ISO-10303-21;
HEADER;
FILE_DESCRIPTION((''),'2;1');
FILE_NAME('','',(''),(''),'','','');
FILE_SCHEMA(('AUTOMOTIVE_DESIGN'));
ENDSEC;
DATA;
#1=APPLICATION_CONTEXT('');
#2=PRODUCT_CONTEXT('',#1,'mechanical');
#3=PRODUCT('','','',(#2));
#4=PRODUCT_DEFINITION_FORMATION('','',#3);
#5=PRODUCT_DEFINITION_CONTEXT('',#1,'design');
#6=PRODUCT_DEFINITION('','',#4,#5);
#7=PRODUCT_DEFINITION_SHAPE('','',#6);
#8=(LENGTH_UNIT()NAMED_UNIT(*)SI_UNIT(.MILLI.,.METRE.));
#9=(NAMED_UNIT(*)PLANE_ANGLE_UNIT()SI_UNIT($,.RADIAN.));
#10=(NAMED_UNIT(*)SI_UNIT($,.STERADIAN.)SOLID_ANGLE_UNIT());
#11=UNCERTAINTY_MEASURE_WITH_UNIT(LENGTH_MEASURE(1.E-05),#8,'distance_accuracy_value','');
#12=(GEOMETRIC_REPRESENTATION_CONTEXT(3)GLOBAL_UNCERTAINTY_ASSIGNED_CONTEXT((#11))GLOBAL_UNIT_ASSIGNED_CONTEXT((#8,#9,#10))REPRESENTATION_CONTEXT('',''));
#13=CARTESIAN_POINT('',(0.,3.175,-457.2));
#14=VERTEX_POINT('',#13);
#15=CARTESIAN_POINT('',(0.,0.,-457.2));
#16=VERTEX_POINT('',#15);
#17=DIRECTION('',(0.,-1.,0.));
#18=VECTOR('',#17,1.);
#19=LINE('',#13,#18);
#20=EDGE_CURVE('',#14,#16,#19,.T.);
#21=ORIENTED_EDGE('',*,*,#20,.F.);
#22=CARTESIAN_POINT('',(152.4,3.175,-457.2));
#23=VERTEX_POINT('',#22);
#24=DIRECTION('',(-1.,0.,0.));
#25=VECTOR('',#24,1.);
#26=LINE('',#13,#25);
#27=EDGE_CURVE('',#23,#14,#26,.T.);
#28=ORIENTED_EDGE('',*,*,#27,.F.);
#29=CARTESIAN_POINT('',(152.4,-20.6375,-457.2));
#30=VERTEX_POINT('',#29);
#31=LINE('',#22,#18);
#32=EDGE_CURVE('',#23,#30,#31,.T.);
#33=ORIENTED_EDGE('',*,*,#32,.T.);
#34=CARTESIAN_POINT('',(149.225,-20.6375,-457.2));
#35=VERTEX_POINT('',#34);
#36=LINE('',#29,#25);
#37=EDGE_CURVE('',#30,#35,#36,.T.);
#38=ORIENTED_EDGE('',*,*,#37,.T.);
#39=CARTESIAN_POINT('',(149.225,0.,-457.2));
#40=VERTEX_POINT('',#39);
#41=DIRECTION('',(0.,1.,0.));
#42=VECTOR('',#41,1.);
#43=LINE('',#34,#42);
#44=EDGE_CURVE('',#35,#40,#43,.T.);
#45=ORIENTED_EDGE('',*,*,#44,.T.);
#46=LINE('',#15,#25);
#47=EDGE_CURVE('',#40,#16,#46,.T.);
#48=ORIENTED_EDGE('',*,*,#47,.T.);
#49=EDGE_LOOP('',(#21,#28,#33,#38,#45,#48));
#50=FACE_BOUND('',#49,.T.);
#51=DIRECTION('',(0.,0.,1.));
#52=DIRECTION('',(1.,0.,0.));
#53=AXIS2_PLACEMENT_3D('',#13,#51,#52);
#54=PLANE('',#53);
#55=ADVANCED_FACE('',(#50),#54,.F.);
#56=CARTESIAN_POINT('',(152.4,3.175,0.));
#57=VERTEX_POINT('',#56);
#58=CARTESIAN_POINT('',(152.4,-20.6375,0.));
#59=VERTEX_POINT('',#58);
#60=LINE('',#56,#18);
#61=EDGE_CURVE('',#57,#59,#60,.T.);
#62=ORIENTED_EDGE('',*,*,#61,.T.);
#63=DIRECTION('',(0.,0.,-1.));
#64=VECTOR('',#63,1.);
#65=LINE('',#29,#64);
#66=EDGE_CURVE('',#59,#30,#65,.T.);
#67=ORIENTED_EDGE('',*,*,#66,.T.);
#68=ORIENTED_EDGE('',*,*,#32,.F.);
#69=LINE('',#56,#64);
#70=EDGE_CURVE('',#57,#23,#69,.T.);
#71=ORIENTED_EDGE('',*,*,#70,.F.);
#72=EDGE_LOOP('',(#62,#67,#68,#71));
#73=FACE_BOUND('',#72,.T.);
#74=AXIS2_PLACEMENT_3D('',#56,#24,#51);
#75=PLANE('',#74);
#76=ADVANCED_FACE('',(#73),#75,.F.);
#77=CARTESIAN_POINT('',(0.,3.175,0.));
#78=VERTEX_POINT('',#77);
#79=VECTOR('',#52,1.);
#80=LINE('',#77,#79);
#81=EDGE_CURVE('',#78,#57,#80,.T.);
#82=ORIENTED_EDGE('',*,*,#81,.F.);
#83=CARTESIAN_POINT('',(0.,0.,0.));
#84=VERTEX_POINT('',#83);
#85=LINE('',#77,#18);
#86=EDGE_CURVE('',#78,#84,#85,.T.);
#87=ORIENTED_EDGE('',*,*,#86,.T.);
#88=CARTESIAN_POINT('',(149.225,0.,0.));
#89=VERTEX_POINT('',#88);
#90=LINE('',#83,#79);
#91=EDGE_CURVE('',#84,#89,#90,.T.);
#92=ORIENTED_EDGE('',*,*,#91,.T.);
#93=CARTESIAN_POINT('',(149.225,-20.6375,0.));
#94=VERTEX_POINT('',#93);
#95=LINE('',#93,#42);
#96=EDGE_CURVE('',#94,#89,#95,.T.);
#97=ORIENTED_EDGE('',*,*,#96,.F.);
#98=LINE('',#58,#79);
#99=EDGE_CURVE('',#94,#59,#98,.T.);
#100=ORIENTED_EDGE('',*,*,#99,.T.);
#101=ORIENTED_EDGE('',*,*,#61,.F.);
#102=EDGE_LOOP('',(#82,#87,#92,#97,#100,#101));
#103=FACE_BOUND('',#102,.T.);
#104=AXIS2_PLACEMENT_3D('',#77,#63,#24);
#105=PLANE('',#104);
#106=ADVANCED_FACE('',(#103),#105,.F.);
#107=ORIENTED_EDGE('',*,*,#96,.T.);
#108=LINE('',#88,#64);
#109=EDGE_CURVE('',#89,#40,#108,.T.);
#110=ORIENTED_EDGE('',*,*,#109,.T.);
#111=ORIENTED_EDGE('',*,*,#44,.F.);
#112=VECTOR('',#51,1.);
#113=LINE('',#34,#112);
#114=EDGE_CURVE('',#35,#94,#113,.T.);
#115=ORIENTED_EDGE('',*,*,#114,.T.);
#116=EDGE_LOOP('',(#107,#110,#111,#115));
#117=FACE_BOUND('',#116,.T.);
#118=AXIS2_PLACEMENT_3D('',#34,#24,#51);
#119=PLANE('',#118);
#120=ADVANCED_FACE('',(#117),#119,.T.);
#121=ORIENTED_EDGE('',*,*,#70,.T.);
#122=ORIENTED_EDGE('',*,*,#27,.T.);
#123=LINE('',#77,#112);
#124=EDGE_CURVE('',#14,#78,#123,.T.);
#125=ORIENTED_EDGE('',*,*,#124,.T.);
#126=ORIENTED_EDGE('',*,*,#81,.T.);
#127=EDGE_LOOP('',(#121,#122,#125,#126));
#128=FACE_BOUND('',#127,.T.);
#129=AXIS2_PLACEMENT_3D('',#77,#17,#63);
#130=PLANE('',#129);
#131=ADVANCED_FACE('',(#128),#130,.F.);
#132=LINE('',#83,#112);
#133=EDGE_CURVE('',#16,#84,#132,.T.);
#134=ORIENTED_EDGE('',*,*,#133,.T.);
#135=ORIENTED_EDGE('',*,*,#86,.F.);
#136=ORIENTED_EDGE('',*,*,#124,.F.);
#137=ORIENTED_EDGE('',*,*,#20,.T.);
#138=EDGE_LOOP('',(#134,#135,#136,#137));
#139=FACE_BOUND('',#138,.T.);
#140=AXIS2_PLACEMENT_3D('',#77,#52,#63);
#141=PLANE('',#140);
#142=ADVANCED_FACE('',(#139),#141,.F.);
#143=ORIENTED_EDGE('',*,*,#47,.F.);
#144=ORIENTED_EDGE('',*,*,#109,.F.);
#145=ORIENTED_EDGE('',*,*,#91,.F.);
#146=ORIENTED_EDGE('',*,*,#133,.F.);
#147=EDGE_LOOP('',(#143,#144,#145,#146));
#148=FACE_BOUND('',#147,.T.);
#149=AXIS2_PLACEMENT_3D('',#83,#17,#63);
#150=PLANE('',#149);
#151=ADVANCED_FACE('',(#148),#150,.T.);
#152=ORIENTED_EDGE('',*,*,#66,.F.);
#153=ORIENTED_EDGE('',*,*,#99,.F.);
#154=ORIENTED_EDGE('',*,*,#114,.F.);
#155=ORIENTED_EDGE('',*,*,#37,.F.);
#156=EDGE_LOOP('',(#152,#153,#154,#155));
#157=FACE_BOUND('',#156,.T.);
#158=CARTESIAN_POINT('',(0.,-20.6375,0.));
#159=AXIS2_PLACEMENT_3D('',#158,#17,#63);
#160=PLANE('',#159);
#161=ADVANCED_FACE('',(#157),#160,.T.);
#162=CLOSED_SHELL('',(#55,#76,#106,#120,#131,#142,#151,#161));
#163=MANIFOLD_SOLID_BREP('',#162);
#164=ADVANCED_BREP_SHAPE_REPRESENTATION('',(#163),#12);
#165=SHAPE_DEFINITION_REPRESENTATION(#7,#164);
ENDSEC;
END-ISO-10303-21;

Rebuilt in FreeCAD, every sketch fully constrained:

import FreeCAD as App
import Part
import Sketcher
from FreeCAD import Vector
Q = App.Units.Quantity


def add_polygon(sketch, points):
    """Adds a closed chain of lines whose ends are joined by coincident constraints."""
    first, n = sketch.GeometryCount, len(points)
    for a, b in zip(points, points[1:] + points[:1]):
        sketch.addGeometry(Part.LineSegment(App.Vector(*a, 0), App.Vector(*b, 0)), False)
    for i in range(n):
        sketch.addConstraint(Sketcher.Constraint("Coincident", first + i, 2, first + (i + 1) % n, 1))

doc = App.newDocument("Part")
body = doc.addObject("PartDesign::Body", "Body")

# Sketch on XZ plane
sketch1 = doc.addObject("Sketcher::SketchObject", "Sketch")
body.addObject(sketch1)
sketch1.AttachmentSupport = (doc.XZ_Plane, [""])
sketch1.MapMode = "FlatFace"
add_polygon(sketch1, [(0, -457), (0, 0), (152, 0), (152, -457)])  # lines 0-3
sketch1.addConstraint([
    Sketcher.Constraint("Vertical", 0),
    Sketcher.Constraint("Horizontal", 1),
    Sketcher.Constraint("Vertical", 2),
    Sketcher.Constraint("Horizontal", 3),
    Sketcher.Constraint("Coincident", 0, 2, -1, 1),
    Sketcher.Constraint("DistanceX", 1, 1, 1, 2, Q("6 in")),
    Sketcher.Constraint("DistanceY", 0, 1, 0, 2, Q("18 in")),
])
pad1 = doc.addObject("PartDesign::Pad", "Pad")
body.addObject(pad1)
pad1.Profile = sketch1
pad1.Length = Q("0.125 in")
pad1.Reversed = True

# Sketch on XZ plane
sketch2 = doc.addObject("Sketcher::SketchObject", "Sketch001")
body.addObject(sketch2)
sketch2.AttachmentSupport = (doc.XZ_Plane, [""])
sketch2.MapMode = "FlatFace"
sketch2.AttachmentOffset = App.Placement(Vector(0, 0, -0.125 * 25.4), App.Rotation())
add_polygon(sketch2, [(149.2, -457.2), (149.2, 0), (152.4, 0), (152.4, -457.2)])  # lines 0-3
sketch2.addConstraint([
    Sketcher.Constraint("Vertical", 0),
    Sketcher.Constraint("Horizontal", 1),
    Sketcher.Constraint("Vertical", 2),
    Sketcher.Constraint("Horizontal", 3),
    Sketcher.Constraint("PointOnObject", 0, 2, -1),
    Sketcher.Constraint("DistanceY", 0, 1, 0, 2, Q("18 in")),
    Sketcher.Constraint("DistanceX", -1, 1, 1, 2, Q("6 in")),
    Sketcher.Constraint("DistanceX", 1, 1, 1, 2, Q("0.125 in")),
])
pad2 = doc.addObject("PartDesign::Pad", "Pad001")
body.addObject(pad2)
pad2.Profile = sketch2
pad2.Length = Q("0.9375 in")

doc.recompute()
